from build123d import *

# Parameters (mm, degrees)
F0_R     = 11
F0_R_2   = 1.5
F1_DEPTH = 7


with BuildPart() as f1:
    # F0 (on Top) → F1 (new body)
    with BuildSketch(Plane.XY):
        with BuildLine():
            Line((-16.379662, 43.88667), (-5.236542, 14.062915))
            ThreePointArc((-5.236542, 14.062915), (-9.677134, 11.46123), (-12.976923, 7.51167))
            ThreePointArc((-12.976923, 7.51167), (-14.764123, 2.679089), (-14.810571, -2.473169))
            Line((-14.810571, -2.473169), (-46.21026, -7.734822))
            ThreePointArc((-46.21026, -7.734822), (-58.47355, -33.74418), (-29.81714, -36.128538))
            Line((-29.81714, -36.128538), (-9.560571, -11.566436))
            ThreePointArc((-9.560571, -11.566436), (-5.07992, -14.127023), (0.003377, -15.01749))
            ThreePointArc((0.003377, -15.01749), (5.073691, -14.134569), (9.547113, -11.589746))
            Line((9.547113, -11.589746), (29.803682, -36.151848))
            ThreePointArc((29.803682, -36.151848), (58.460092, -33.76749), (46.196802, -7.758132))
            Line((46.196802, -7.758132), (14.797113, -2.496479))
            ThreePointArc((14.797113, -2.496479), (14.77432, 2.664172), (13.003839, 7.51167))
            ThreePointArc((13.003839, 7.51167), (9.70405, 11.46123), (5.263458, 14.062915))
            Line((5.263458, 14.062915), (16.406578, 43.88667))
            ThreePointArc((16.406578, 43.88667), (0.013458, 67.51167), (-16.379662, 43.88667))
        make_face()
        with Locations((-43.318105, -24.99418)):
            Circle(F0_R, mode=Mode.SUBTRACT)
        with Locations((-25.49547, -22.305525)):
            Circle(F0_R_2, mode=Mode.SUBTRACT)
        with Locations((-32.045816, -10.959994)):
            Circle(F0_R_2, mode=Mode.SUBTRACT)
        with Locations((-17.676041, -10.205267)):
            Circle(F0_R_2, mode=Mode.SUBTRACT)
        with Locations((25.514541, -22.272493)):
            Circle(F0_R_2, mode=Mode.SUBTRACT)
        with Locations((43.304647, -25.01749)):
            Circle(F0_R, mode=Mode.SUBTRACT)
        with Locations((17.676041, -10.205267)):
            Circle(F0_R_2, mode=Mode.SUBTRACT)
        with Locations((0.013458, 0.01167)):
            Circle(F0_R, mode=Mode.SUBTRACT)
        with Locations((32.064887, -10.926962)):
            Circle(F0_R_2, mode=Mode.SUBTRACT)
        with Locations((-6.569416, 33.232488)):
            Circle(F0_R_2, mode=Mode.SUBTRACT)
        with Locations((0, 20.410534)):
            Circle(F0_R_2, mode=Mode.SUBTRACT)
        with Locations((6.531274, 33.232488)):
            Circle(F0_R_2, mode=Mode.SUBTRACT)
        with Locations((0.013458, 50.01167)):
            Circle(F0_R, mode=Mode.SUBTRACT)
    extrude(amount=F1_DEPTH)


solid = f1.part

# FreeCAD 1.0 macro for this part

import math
import FreeCAD as App
import Part
import Sketcher

V = App.Vector

doc = App.newDocument("Part")
params = doc.addObject("Spreadsheet::Sheet", "Params")
for row, (alias, value) in enumerate([
    ("sketch1_diameter", "22 mm"),
    ("sketch1_diameter2", "3 mm"),
    ("sketch1_radius", "15 mm"),
    ("sketch1_radius2", "17.5 mm"),
    ("sketch1_height", "7.499998 mm"),
    ("pad1_length", "7 mm"),
], start=1):
    params.set(f"A{row}", alias)
    params.set(f"B{row}", "=" + value)
    params.setAlias(f"B{row}", alias)

body = doc.addObject("PartDesign::Body", "Body")

# Sketch on XY plane
sketch1 = doc.addObject("Sketcher::SketchObject", "Sketch")
body.addObject(sketch1)
sketch1.AttachmentSupport = (doc.XY_Plane, [""])
sketch1.MapMode = "FlatFace"
sketch1.addGeometry(Part.LineSegment(V(-16.4, 43.9, 0), V(-5.2, 14.1, 0)), False)
sketch1.addGeometry(Part.ArcOfCircle(Part.Circle(V(0, 0, 0), V(0, 0, 1), 15), math.radians(110), math.radians(150)), False)
sketch1.addGeometry(Part.ArcOfCircle(Part.Circle(V(0, 0, 0), V(0, 0, 1), 15), math.radians(150), math.radians(189)), False)
sketch1.addGeometry(Part.LineSegment(V(-14.8, -2.5, 0), V(-46.2, -7.7, 0)), False)
sketch1.addGeometry(Part.ArcOfCircle(Part.Circle(V(-43.3, -25, 0), V(0, 0, 1), 17.5), math.radians(100), math.radians(320)), False)
sketch1.addGeometry(Part.LineSegment(V(-29.8, -36.1, 0), V(-9.6, -11.6, 0)), False)
sketch1.addGeometry(Part.ArcOfCircle(Part.Circle(V(0, 0, 0), V(0, 0, 1), 15), math.radians(-130), math.radians(-90)), False)
sketch1.addGeometry(Part.ArcOfCircle(Part.Circle(V(0, 0, 0), V(0, 0, 1), 15), math.radians(-90), math.radians(-50)), False)
sketch1.addGeometry(Part.LineSegment(V(9.5, -11.6, 0), V(29.8, -36.2, 0)), False)
sketch1.addGeometry(Part.ArcOfCircle(Part.Circle(V(43.3, -25, 0), V(0, 0, 1), 17.5), math.radians(-140), math.radians(80)), False)
sketch1.addGeometry(Part.LineSegment(V(46.2, -7.8, 0), V(14.8, -2.5, 0)), False)
sketch1.addGeometry(Part.ArcOfCircle(Part.Circle(V(0, 0, 0), V(0, 0, 1), 15), math.radians(-10), math.radians(30)), False)
sketch1.addGeometry(Part.ArcOfCircle(Part.Circle(V(0, 0, 0), V(0, 0, 1), 15), math.radians(30), math.radians(70)), False)
sketch1.addGeometry(Part.LineSegment(V(5.3, 14.1, 0), V(16.4, 43.9, 0)), False)
sketch1.addGeometry(Part.ArcOfCircle(Part.Circle(V(0, 50, 0), V(0, 0, 1), 17.5), math.radians(-20), math.radians(200)), False)
sketch1.addGeometry(Part.Circle(V(-43.3, -25, 0), V(0, 0, 1), 11), False)
sketch1.addGeometry(Part.Circle(V(-25.5, -22.3, 0), V(0, 0, 1), 1.5), False)
sketch1.addGeometry(Part.Circle(V(-32, -11, 0), V(0, 0, 1), 1.5), False)
sketch1.addGeometry(Part.Circle(V(-17.7, -10.2, 0), V(0, 0, 1), 1.5), False)
sketch1.addGeometry(Part.Circle(V(25.5, -22.3, 0), V(0, 0, 1), 1.5), False)
sketch1.addGeometry(Part.Circle(V(43.3, -25, 0), V(0, 0, 1), 11), False)
sketch1.addGeometry(Part.Circle(V(0, 0, 0), V(0, 0, 1), 11), False)
sketch1.addGeometry(Part.Circle(V(17.7, -10.2, 0), V(0, 0, 1), 1.5), False)
sketch1.addGeometry(Part.Circle(V(32.1, -10.9, 0), V(0, 0, 1), 1.5), False)
sketch1.addGeometry(Part.Circle(V(-6.6, 33.2, 0), V(0, 0, 1), 1.5), False)
sketch1.addGeometry(Part.Circle(V(0, 20.4, 0), V(0, 0, 1), 1.5), False)
sketch1.addGeometry(Part.Circle(V(6.5, 33.2, 0), V(0, 0, 1), 1.5), False)
sketch1.addGeometry(Part.Circle(V(0, 50, 0), V(0, 0, 1), 11), False)
sketch1.addConstraint(Sketcher.Constraint("Coincident", 0, 2, 1, 1))
sketch1.addConstraint(Sketcher.Constraint("Coincident", 1, 2, 2, 1))
sketch1.addConstraint(Sketcher.Constraint("Coincident", 2, 2, 3, 1))
sketch1.addConstraint(Sketcher.Constraint("Tangent", 3, 2, 4, 1))
sketch1.addConstraint(Sketcher.Constraint("Tangent", 4, 2, 5, 1))
sketch1.addConstraint(Sketcher.Constraint("Coincident", 5, 2, 6, 1))
sketch1.addConstraint(Sketcher.Constraint("Coincident", 6, 2, 7, 1))
sketch1.addConstraint(Sketcher.Constraint("Coincident", 7, 2, 8, 1))
sketch1.addConstraint(Sketcher.Constraint("Tangent", 8, 2, 9, 1))
sketch1.addConstraint(Sketcher.Constraint("Tangent", 9, 2, 10, 1))
sketch1.addConstraint(Sketcher.Constraint("Coincident", 10, 2, 11, 1))
sketch1.addConstraint(Sketcher.Constraint("Coincident", 11, 2, 12, 1))
sketch1.addConstraint(Sketcher.Constraint("Coincident", 12, 2, 13, 1))
sketch1.addConstraint(Sketcher.Constraint("Tangent", 13, 2, 14, 1))
sketch1.addConstraint(Sketcher.Constraint("Tangent", 14, 2, 0, 1))
sketch1.addConstraint(Sketcher.Constraint("Coincident", 12, 3, 1, 3))
sketch1.addConstraint(Sketcher.Constraint("Coincident", 15, 3, 4, 3))
sketch1.addConstraint(Sketcher.Constraint("Coincident", 20, 3, 9, 3))
sketch1.addConstraint(Sketcher.Constraint("Coincident", 21, 3, 1, 3))
sketch1.addConstraint(Sketcher.Constraint("Coincident", 27, 3, 14, 3))
sketch1.addConstraint(Sketcher.Constraint("Equal", 1, 2))
sketch1.addConstraint(Sketcher.Constraint("Equal", 4, 9))
sketch1.addConstraint(Sketcher.Constraint("Equal", 2, 12))
sketch1.addConstraint(Sketcher.Constraint("Equal", 9, 14))
sketch1.addConstraint(Sketcher.Constraint("Equal", 16, 17))
sketch1.addConstraint(Sketcher.Constraint("Equal", 17, 18))
sketch1.addConstraint(Sketcher.Constraint("Equal", 18, 19))
sketch1.addConstraint(Sketcher.Constraint("Equal", 15, 20))
sketch1.addConstraint(Sketcher.Constraint("Equal", 20, 21))
sketch1.addConstraint(Sketcher.Constraint("Equal", 19, 22))
sketch1.addConstraint(Sketcher.Constraint("Equal", 22, 23))
sketch1.addConstraint(Sketcher.Constraint("Equal", 23, 24))
sketch1.addConstraint(Sketcher.Constraint("Equal", 24, 25))
sketch1.addConstraint(Sketcher.Constraint("Equal", 25, 26))
sketch1.addConstraint(Sketcher.Constraint("Equal", 21, 27))
sketch1.addConstraint(Sketcher.Constraint("Symmetric", 18, 3, 22, 3, -2))
sketch1.addConstraint(Sketcher.Constraint("PointOnObject", 25, 3, -2))
sketch1.addConstraint(Sketcher.Constraint("Horizontal", 24, 3, 26, 3))
sketch1.addConstraint(Sketcher.Constraint("Horizontal", 1, 2, 11, 2))
sketch1.addConstraint(Sketcher.Constraint("Horizontal", 0, 2, 12, 2))
sketch1.addConstraint(Sketcher.Constraint("Horizontal", 13, 2, 14, 2))
sketch1.addConstraint(Sketcher.Constraint("Vertical", 7, 3, 6, 2))
sketch1.addConstraint(Sketcher.Constraint("Equal", 0, 3))
sketch1.addConstraint(Sketcher.Constraint("Equal", 3, 5))
sketch1.addConstraint(Sketcher.Constraint("Equal", 5, 8))
sketch1.addConstraint(Sketcher.Constraint("Equal", 8, 10))
sketch1.addConstraint(Sketcher.Constraint("Diameter", 15, 22.0))
sketch1.addConstraint(Sketcher.Constraint("Diameter", 16, 3.0))
sketch1.addConstraint(Sketcher.Constraint("Radius", 7, 15.0))
sketch1.addConstraint(Sketcher.Constraint("Radius", 4, 17.5))
sketch1.addConstraint(Sketcher.Constraint("DistanceY", 9, 3, 7, 3, 25.0))
sketch1.addConstraint(Sketcher.Constraint("DistanceY", 1, 3, 1, 2, 7.499998))
sketch1.addConstraint(Sketcher.Constraint("DistanceX", 0, 2, 12, 2, 10.5))
sketch1.addConstraint(Sketcher.Constraint("DistanceX", 2, 2, 5, 2, 5.25))
sketch1.addConstraint(Sketcher.Constraint("DistanceX", 7, 2, 10, 2, 5.25))
sketch1.addConstraint(Sketcher.Constraint("Radius", 1, 14.999997))
sketch1.addConstraint(Sketcher.Constraint("Radius", 6, 14.999994))
sketch1.addConstraint(Sketcher.Constraint("Radius", 11, 15.000006))
sketch1.addConstraint(Sketcher.Constraint("DistanceX", 11, 3, 12, 3, 0.003998))
sketch1.addConstraint(Sketcher.Constraint("DistanceY", 13, 2, 14, 3, 6.125))
sketch1.addConstraint(Sketcher.Constraint("DistanceX", 2, 3, 6, 3, 0.022199))
sketch1.addConstraint(Sketcher.Constraint("DistanceX", 2, 3, 11, 3, 0.020301))
sketch1.addConstraint(Sketcher.Constraint("DistanceX", 18, 3, 2, 3, 17.665201))
sketch1.addConstraint(Sketcher.Constraint("DistanceX", 22, 3, 19, 3, 7.8385))
sketch1.addConstraint(Sketcher.Constraint("DistanceX", 4, 2, 18, 3, 12.141099))
sketch1.addConstraint(Sketcher.Constraint("DistanceY", -1, 1, 1, 3, 0.011672))
sketch1.addConstraint(Sketcher.Constraint("DistanceX", 2, 3, -1, 1, 0.01084))
sketch1.addConstraint(Sketcher.Constraint("DistanceY", 4, 3, -1, 1, 24.99418))
sketch1.addConstraint(Sketcher.Constraint("DistanceX", 16, 3, -1, 1, 25.49547))
sketch1.addConstraint(Sketcher.Constraint("DistanceX", -1, 1, 8, 2, 29.803682))
sketch1.addConstraint(Sketcher.Constraint("DistanceY", 16, 3, 17, 3, 11.345531))
sketch1.addConstraint(Sketcher.Constraint("DistanceX", 15, 3, 17, 3, 11.272289))
sketch1.addConstraint(Sketcher.Constraint("DistanceY", 18, 3, 6, 3, 10.187769))
sketch1.addConstraint(Sketcher.Constraint("DistanceY", 19, 3, 2, 3, 22.242242))
sketch1.addConstraint(Sketcher.Constraint("DistanceY", 19, 3, 23, 3, 11.345531))
sketch1.addConstraint(Sketcher.Constraint("DistanceX", 23, 3, 20, 3, 11.23976))
sketch1.addConstraint(Sketcher.Constraint("DistanceY", 24, 3, 14, 3, 16.779182))
sketch1.addConstraint(Sketcher.Constraint("DistanceX", 24, 3, 1, 3, 6.582872))
sketch1.addConstraint(Sketcher.Constraint("DistanceY", 11, 3, 25, 3, 20.39195))
sketch1.addConstraint(Sketcher.Constraint("DistanceX", 24, 3, 26, 3, 13.10069))
sketch1.addConstraint(Sketcher.Constraint("DistanceY", 17, 3, 3, 2, 3.225172))
sketch1.setExpression("Constraints[46]", "Params.sketch1_diameter")
sketch1.setExpression("Constraints[47]", "Params.sketch1_diameter2")
sketch1.setExpression("Constraints[48]", "Params.sketch1_radius")
sketch1.setExpression("Constraints[49]", "Params.sketch1_radius2")
sketch1.setExpression("Constraints[51]", "Params.sketch1_height")
pad1 = doc.addObject("PartDesign::Pad", "Pad")
body.addObject(pad1)
pad1.Profile = sketch1
pad1.setExpression("Length", "Params.pad1_length")

doc.recompute()
